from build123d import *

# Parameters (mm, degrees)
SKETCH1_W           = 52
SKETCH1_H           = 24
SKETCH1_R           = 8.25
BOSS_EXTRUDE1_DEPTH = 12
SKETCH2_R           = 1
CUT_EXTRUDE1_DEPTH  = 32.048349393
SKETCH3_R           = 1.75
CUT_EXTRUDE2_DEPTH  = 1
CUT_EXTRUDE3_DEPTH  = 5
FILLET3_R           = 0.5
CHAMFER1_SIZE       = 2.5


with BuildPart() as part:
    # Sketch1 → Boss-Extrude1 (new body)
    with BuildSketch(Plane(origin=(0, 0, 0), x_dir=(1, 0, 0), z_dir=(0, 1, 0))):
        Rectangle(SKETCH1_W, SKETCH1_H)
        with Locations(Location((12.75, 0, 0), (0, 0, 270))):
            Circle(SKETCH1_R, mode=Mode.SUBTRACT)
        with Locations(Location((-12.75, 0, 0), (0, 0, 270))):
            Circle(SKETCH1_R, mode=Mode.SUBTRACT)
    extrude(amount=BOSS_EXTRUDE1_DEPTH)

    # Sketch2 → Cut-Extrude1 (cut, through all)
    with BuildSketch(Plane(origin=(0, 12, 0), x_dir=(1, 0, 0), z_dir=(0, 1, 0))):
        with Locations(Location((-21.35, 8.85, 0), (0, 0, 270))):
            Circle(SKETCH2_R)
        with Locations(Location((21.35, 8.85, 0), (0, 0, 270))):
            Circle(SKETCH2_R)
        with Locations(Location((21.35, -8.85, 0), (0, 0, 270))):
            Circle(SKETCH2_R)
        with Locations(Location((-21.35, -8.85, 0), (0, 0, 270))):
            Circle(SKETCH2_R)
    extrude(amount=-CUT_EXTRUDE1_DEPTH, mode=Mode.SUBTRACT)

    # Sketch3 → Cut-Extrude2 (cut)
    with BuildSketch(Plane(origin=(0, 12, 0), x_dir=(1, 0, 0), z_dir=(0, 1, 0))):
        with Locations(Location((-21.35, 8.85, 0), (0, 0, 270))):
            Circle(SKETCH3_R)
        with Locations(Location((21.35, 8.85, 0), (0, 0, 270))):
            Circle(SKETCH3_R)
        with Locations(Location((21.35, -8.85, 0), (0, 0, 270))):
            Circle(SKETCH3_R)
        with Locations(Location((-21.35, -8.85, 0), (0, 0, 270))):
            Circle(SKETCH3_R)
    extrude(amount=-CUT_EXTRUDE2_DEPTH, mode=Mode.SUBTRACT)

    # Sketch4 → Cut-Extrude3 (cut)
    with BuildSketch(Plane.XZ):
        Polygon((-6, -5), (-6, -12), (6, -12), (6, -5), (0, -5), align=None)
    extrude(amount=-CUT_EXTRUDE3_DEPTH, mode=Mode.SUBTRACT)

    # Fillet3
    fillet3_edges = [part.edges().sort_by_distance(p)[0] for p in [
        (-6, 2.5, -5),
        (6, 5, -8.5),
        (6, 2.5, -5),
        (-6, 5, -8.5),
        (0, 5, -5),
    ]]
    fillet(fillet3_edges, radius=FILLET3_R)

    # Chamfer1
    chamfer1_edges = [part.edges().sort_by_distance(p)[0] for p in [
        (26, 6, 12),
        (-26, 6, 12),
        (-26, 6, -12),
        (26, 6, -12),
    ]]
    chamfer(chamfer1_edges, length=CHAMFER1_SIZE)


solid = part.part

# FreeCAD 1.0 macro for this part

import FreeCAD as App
import Part
import Sketcher
Q = App.Units.Quantity


def edges_at(feature, points):
    """Names of the edges that pass closest to the given points."""
    edges = feature.Shape.Edges
    near = lambda p: min(range(len(edges)), key=lambda i: edges[i].distToShape(Part.Vertex(*p))[0])
    return sorted({f"Edge{near(p) + 1}" for p in points})

doc = App.newDocument("Part")
body = doc.addObject("PartDesign::Body", "Body")

# Sketch on XZ plane
sketch1 = body.newObject("Sketcher::SketchObject", "Sketch")
sketch1.AttachmentSupport = (doc.getObject("XZ_Plane"), [""])
sketch1.MapMode = "FlatFace"
sketch1.addGeometry([
    Part.LineSegment(App.Vector(-26, -12, 0), App.Vector(-26, 12, 0)),  # 0
    Part.LineSegment(App.Vector(-26, 12, 0), App.Vector(26, 12, 0)),  # 1
    Part.LineSegment(App.Vector(26, 12, 0), App.Vector(26, -12, 0)),  # 2
    Part.LineSegment(App.Vector(26, -12, 0), App.Vector(-26, -12, 0)),  # 3
    Part.Circle(App.Vector(-12.75, 0, 0), App.Vector(0, 0, 1), 8.25),  # 4
    Part.Circle(App.Vector(12.75, 0, 0), App.Vector(0, 0, 1), 8.25),  # 5
], False)
sketch1.addConstraint([
    Sketcher.Constraint("Coincident", 0, 2, 1, 1),
    Sketcher.Constraint("Coincident", 1, 2, 2, 1),
    Sketcher.Constraint("Coincident", 2, 2, 3, 1),
    Sketcher.Constraint("Coincident", 3, 2, 0, 1),
    Sketcher.Constraint("Vertical", 0),
    Sketcher.Constraint("Horizontal", 1),
    Sketcher.Constraint("Vertical", 2),
    Sketcher.Constraint("Horizontal", 3),
    Sketcher.Constraint("Equal", 4, 5),
    Sketcher.Constraint("Symmetric", 4, 3, 5, 3, -1, 1),
    Sketcher.Constraint("Symmetric", 0, 2, 2, 2, -1, 1),
    Sketcher.Constraint("PointOnObject", 4, 3, -1),
    Sketcher.Constraint("Diameter", 4, Q("16.5 mm")),
    Sketcher.Constraint("DistanceX", 1, 1, 1, 2, Q("52 mm")),
    Sketcher.Constraint("DistanceY", 0, 1, 0, 2, Q("24 mm")),
    Sketcher.Constraint("DistanceX", 4, 3, 5, 3, Q("25.5 mm")),
])
pad1 = body.newObject("PartDesign::Pad", "Pad")
pad1.Profile = sketch1
pad1.Length = 12
pad1.Reversed = True

# Sketch on XZ plane
sketch2 = body.newObject("Sketcher::SketchObject", "Sketch001")
sketch2.AttachmentSupport = (doc.getObject("XZ_Plane"), [""])
sketch2.MapMode = "FlatFace"
sketch2.AttachmentOffset = App.Placement(App.Vector(0, 0, -12), App.Rotation())
sketch2.addGeometry([
    Part.Circle(App.Vector(-21.35, -8.85, 0), App.Vector(0, 0, 1), 1),
    Part.Circle(App.Vector(21.35, -8.85, 0), App.Vector(0, 0, 1), 1),
    Part.Circle(App.Vector(21.35, 8.85, 0), App.Vector(0, 0, 1), 1),
    Part.Circle(App.Vector(-21.35, 8.85, 0), App.Vector(0, 0, 1), 1),
], False)
sketch2.addConstraint([
    Sketcher.Constraint("Equal", 0, 1),
    Sketcher.Constraint("Equal", 1, 2),
    Sketcher.Constraint("Equal", 2, 3),
    Sketcher.Constraint("Symmetric", 0, 3, 2, 3, -1, 1),
    Sketcher.Constraint("Symmetric", 1, 3, 3, 3, -1, 1),
    Sketcher.Constraint("Symmetric", 0, 3, 1, 3, -2),
    Sketcher.Constraint("Diameter", 0, Q("2 mm")),
    Sketcher.Constraint("DistanceX", 0, 3, 1, 3, Q("42.7 mm")),
    Sketcher.Constraint("DistanceY", 1, 3, 2, 3, Q("17.7 mm")),
])
pocket1 = body.newObject("PartDesign::Pocket", "Pocket")
pocket1.Profile = sketch2
pocket1.Type = "ThroughAll"
pocket1.Reversed = True

# Sketch on XZ plane
sketch3 = body.newObject("Sketcher::SketchObject", "Sketch002")
sketch3.AttachmentSupport = (doc.getObject("XZ_Plane"), [""])
sketch3.MapMode = "FlatFace"
sketch3.AttachmentOffset = App.Placement(App.Vector(0, 0, -12), App.Rotation())
sketch3.addGeometry([
    Part.Circle(App.Vector(-21.35, -8.85, 0), App.Vector(0, 0, 1), 1.75),
    Part.Circle(App.Vector(21.35, -8.85, 0), App.Vector(0, 0, 1), 1.75),
    Part.Circle(App.Vector(21.35, 8.85, 0), App.Vector(0, 0, 1), 1.75),
    Part.Circle(App.Vector(-21.35, 8.85, 0), App.Vector(0, 0, 1), 1.75),
], False)
sketch3.addConstraint([
    Sketcher.Constraint("Equal", 0, 1),
    Sketcher.Constraint("Equal", 1, 2),
    Sketcher.Constraint("Equal", 2, 3),
    Sketcher.Constraint("Symmetric", 0, 3, 2, 3, -1, 1),
    Sketcher.Constraint("Symmetric", 1, 3, 3, 3, -1, 1),
    Sketcher.Constraint("Symmetric", 0, 3, 1, 3, -2),
    Sketcher.Constraint("Diameter", 0, Q("3.5 mm")),
    Sketcher.Constraint("DistanceX", 0, 3, 1, 3, Q("42.7 mm")),
    Sketcher.Constraint("DistanceY", 1, 3, 2, 3, Q("17.7 mm")),
])
pocket2 = body.newObject("PartDesign::Pocket", "Pocket001")
pocket2.Profile = sketch3
pocket2.Length = 1
pocket2.Reversed = True

# Sketch on XZ plane
sketch4 = body.newObject("Sketcher::SketchObject", "Sketch003")
sketch4.AttachmentSupport = (doc.getObject("XZ_Plane"), [""])
sketch4.MapMode = "FlatFace"
sketch4.addGeometry([
    Part.LineSegment(App.Vector(-6, -5, 0), App.Vector(-6, -12, 0)),
    Part.LineSegment(App.Vector(-6, -12, 0), App.Vector(6, -12, 0)),
    Part.LineSegment(App.Vector(6, -12, 0), App.Vector(6, -5, 0)),
    Part.LineSegment(App.Vector(6, -5, 0), App.Vector(-6, -5, 0)),
], False)
sketch4.addConstraint([
    Sketcher.Constraint("Coincident", 0, 2, 1, 1),
    Sketcher.Constraint("Coincident", 1, 2, 2, 1),
    Sketcher.Constraint("Coincident", 2, 2, 3, 1),
    Sketcher.Constraint("Coincident", 3, 2, 0, 1),
    Sketcher.Constraint("Vertical", 0),
    Sketcher.Constraint("Horizontal", 1),
    Sketcher.Constraint("Vertical", 2),
    Sketcher.Constraint("Horizontal", 3),
    Sketcher.Constraint("DistanceX", 1, 1, 1, 2, Q("12 mm")),
    Sketcher.Constraint("DistanceY", 0, 2, 0, 1, Q("7 mm")),
    Sketcher.Constraint("DistanceX", 0, 2, -1, 1, Q("6 mm")),
    Sketcher.Constraint("DistanceY", 0, 2, -1, 1, Q("12 mm")),
])
pocket3 = body.newObject("PartDesign::Pocket", "Pocket002")
pocket3.Profile = sketch4
pocket3.Length = 5
doc.recompute()

fillet = body.newObject("PartDesign::Fillet", "Fillet")
fillet.Base = (pocket3, edges_at(pocket3, [
    (-6, 2.5, -5),
    (6, 5, -8.5),
    (6, 2.5, -5),
    (-6, 5, -8.5),
    (0, 5, -5),
]))
fillet.Radius = 0.5
doc.recompute()

chamfer = body.newObject("PartDesign::Chamfer", "Chamfer")
chamfer.Base = (fillet, edges_at(fillet, [
    (26, 6, 12),
    (-26, 6, 12),
    (-26, 6, -12),
    (26, 6, -12),
]))
chamfer.Size = 2.5

doc.recompute()
